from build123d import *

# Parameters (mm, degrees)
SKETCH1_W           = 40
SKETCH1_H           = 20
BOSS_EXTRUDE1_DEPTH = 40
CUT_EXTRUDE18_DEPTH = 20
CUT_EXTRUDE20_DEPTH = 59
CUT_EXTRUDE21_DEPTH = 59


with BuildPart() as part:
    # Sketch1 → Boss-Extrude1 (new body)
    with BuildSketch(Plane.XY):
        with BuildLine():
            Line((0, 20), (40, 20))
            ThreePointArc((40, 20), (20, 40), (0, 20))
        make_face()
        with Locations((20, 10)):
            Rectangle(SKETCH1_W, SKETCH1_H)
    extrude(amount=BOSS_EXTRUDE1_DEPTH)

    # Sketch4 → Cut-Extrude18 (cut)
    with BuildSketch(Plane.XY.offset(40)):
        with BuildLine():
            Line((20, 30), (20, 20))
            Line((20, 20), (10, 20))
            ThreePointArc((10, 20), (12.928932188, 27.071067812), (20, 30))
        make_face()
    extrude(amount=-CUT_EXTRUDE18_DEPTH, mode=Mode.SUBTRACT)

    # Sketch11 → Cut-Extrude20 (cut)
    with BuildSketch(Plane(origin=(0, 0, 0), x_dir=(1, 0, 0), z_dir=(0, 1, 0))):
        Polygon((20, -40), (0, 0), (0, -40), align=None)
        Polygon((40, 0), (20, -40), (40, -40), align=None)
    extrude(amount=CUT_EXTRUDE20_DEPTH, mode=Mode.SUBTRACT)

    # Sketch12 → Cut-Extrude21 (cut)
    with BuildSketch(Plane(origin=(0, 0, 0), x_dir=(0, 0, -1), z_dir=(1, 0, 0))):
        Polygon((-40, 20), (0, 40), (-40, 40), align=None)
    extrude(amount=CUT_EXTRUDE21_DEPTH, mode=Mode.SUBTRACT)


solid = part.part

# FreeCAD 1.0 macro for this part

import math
import FreeCAD as App
import Part
import Sketcher

V = App.Vector

doc = App.newDocument("Part")
body = doc.addObject("PartDesign::Body", "Body")

sketch1 = body.newObject("Sketcher::SketchObject", "Sketch")
sketch1.AttachmentSupport = (doc.getObject("XY_Plane"), [""])
sketch1.MapMode = "FlatFace"
sketch1.addGeometry(Part.ArcOfCircle(Part.Circle(V(20, 20, 0), V(0, 0, 1), 20), math.radians(0), math.radians(180)), False)
sketch1.addGeometry(Part.LineSegment(V(0, 20, 0), V(0, 0, 0)), False)
sketch1.addGeometry(Part.LineSegment(V(0, 0, 0), V(40, 0, 0)), False)
sketch1.addGeometry(Part.LineSegment(V(40, 0, 0), V(40, 20, 0)), False)
sketch1.addConstraint(Sketcher.Constraint("Tangent", 0, 2, 1, 1))
sketch1.addConstraint(Sketcher.Constraint("Coincident", 1, 2, 2, 1))
sketch1.addConstraint(Sketcher.Constraint("Coincident", 2, 2, 3, 1))
sketch1.addConstraint(Sketcher.Constraint("Tangent", 3, 2, 0, 1))
sketch1.addConstraint(Sketcher.Constraint("Vertical", 1))
sketch1.addConstraint(Sketcher.Constraint("Horizontal", 2))
sketch1.addConstraint(Sketcher.Constraint("Vertical", 3))
sketch1.addConstraint(Sketcher.Constraint("Coincident", 1, 2, -1, 1))
sketch1.addConstraint(Sketcher.Constraint("Radius", 0, 20.0))
sketch1.addConstraint(Sketcher.Constraint("DistanceY", 1, 2, 1, 1, 20.0))
pad1 = body.newObject("PartDesign::Pad", "Pad")
pad1.Profile = sketch1
pad1.Length = 40

sketch2 = body.newObject("Sketcher::SketchObject", "Sketch001")
sketch2.AttachmentSupport = (doc.getObject("XY_Plane"), [""])
sketch2.MapMode = "FlatFace"
sketch2.AttachmentOffset = App.Placement(V(0, 0, 40), App.Rotation())
sketch2.addGeometry(Part.LineSegment(V(20, 20, 0), V(20, 30, 0)), False)
sketch2.addGeometry(Part.ArcOfCircle(Part.Circle(V(20, 20, 0), V(0, 0, 1), 10), math.radians(90), math.radians(180)), False)
sketch2.addGeometry(Part.LineSegment(V(10, 20, 0), V(20, 20, 0)), False)
sketch2.addConstraint(Sketcher.Constraint("Coincident", 0, 2, 1, 1))
sketch2.addConstraint(Sketcher.Constraint("Coincident", 1, 2, 2, 1))
sketch2.addConstraint(Sketcher.Constraint("Coincident", 2, 2, 0, 1))
sketch2.addConstraint(Sketcher.Constraint("Vertical", 0))
sketch2.addConstraint(Sketcher.Constraint("Horizontal", 2))
sketch2.addConstraint(Sketcher.Constraint("Coincident", 2, 2, 1, 3))
sketch2.addConstraint(Sketcher.Constraint("Radius", 1, 10.0))
sketch2.addConstraint(Sketcher.Constraint("DistanceX", -1, 1, 1, 3, 20.0))
sketch2.addConstraint(Sketcher.Constraint("DistanceY", -1, 1, 1, 3, 20.0))
pocket1 = body.newObject("PartDesign::Pocket", "Pocket")
pocket1.Profile = sketch2
pocket1.Length = 20

sketch3 = body.newObject("Sketcher::SketchObject", "Sketch002")
sketch3.AttachmentSupport = (doc.getObject("XZ_Plane"), [""])
sketch3.MapMode = "FlatFace"
sketch3.addGeometry(Part.LineSegment(V(20, 40, 0), V(0, 0, 0)), False)
sketch3.addGeometry(Part.LineSegment(V(0, 0, 0), V(0, 40, 0)), False)
sketch3.addGeometry(Part.LineSegment(V(0, 40, 0), V(20, 40, 0)), False)
sketch3.addGeometry(Part.LineSegment(V(40, 0, 0), V(20, 40, 0)), False)
sketch3.addGeometry(Part.LineSegment(V(20, 40, 0), V(40, 40, 0)), False)
sketch3.addGeometry(Part.LineSegment(V(40, 40, 0), V(40, 0, 0)), False)
sketch3.addConstraint(Sketcher.Constraint("Coincident", 0, 2, 1, 1))
sketch3.addConstraint(Sketcher.Constraint("Coincident", 1, 2, 2, 1))
sketch3.addConstraint(Sketcher.Constraint("Coincident", 2, 2, 0, 1))
sketch3.addConstraint(Sketcher.Constraint("Coincident", 3, 2, 4, 1))
sketch3.addConstraint(Sketcher.Constraint("Coincident", 4, 2, 5, 1))
sketch3.addConstraint(Sketcher.Constraint("Coincident", 5, 2, 3, 1))
sketch3.addConstraint(Sketcher.Constraint("Vertical", 1))
sketch3.addConstraint(Sketcher.Constraint("Horizontal", 2))
sketch3.addConstraint(Sketcher.Constraint("Horizontal", 4))
sketch3.addConstraint(Sketcher.Constraint("Vertical", 5))
sketch3.addConstraint(Sketcher.Constraint("Coincident", 0, 2, -1, 1))
sketch3.addConstraint(Sketcher.Constraint("Coincident", 3, 2, 2, 2))
sketch3.addConstraint(Sketcher.Constraint("PointOnObject", 5, 2, -1))
sketch3.addConstraint(Sketcher.Constraint("Equal", 2, 4))
sketch3.addConstraint(Sketcher.Constraint("DistanceX", 2, 1, 2, 2, 20.0))
sketch3.addConstraint(Sketcher.Constraint("DistanceY", 1, 1, 1, 2, 40.0))
pocket2 = body.newObject("PartDesign::Pocket", "Pocket001")
pocket2.Profile = sketch3
pocket2.Length = 59

sketch4 = body.newObject("Sketcher::SketchObject", "Sketch003")
sketch4.AttachmentSupport = (doc.getObject("YZ_Plane"), [""])
sketch4.MapMode = "FlatFace"
sketch4.addGeometry(Part.LineSegment(V(20, 40, 0), V(40, 0, 0)), False)
sketch4.addGeometry(Part.LineSegment(V(40, 0, 0), V(40, 40, 0)), False)
sketch4.addGeometry(Part.LineSegment(V(40, 40, 0), V(20, 40, 0)), False)
sketch4.addConstraint(Sketcher.Constraint("Coincident", 0, 2, 1, 1))
sketch4.addConstraint(Sketcher.Constraint("Coincident", 1, 2, 2, 1))
sketch4.addConstraint(Sketcher.Constraint("Coincident", 2, 2, 0, 1))
sketch4.addConstraint(Sketcher.Constraint("Vertical", 1))
sketch4.addConstraint(Sketcher.Constraint("Horizontal", 2))
sketch4.addConstraint(Sketcher.Constraint("PointOnObject", 0, 2, -1))
sketch4.addConstraint(Sketcher.Constraint("DistanceX", 2, 2, 2, 1, 20.0))
sketch4.addConstraint(Sketcher.Constraint("DistanceY", 1, 1, 1, 2, 40.0))
sketch4.addConstraint(Sketcher.Constraint("DistanceX", -1, 1, 0, 2, 40.0))
pocket3 = body.newObject("PartDesign::Pocket", "Pocket002")
pocket3.Profile = sketch4
pocket3.Length = 59
pocket3.Reversed = True

doc.recompute()
